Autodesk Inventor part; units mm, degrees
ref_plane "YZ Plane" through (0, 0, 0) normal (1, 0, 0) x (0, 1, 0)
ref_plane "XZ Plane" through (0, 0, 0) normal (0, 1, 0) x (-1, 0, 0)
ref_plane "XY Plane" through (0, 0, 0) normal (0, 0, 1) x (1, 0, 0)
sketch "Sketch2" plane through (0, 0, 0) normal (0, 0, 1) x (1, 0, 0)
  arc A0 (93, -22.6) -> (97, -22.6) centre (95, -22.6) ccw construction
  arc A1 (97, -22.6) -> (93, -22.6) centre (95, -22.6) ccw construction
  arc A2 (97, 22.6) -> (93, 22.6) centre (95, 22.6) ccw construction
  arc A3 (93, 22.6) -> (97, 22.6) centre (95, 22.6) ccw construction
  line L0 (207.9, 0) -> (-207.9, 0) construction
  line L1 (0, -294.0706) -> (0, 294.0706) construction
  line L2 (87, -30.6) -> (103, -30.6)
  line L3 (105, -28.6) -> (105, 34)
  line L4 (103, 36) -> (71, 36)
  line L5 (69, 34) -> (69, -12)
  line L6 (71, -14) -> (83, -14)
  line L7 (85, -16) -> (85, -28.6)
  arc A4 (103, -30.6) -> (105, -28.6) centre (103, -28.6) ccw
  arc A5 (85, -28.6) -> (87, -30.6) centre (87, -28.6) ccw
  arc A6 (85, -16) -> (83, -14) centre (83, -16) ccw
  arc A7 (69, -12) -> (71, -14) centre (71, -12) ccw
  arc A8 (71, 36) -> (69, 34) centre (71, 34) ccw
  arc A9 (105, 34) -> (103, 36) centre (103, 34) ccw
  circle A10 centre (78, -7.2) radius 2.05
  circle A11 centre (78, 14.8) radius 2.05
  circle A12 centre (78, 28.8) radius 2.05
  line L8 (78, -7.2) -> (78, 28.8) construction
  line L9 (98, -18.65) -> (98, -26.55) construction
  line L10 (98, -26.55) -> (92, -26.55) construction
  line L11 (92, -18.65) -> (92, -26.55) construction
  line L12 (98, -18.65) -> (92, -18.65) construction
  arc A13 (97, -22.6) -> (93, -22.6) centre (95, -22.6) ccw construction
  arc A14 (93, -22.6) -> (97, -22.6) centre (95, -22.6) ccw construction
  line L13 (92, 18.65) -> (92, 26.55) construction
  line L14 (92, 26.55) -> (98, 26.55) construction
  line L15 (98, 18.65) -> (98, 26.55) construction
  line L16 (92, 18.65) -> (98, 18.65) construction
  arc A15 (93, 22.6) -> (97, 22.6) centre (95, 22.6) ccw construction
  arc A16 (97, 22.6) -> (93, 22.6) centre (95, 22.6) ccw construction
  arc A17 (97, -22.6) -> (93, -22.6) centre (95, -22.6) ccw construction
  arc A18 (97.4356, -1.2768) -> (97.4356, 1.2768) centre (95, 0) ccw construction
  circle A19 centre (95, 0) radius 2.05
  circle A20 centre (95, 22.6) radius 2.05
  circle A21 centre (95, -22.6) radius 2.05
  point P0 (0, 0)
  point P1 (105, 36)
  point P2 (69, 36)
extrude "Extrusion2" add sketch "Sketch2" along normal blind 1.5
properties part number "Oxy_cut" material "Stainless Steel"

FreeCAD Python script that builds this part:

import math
import FreeCAD as App
import Part
import Sketcher

V = App.Vector

doc = App.newDocument("Part")
params = doc.addObject("Spreadsheet::Sheet", "Params")
for row, (alias, value) in enumerate([
    ("sketch1_radius", "2 mm"),
    ("sketch1_diameter", "4.1 mm"),
    ("sketch1_width", "16 mm"),
    ("sketch1_width2", "32 mm"),
    ("sketch1_height", "46 mm"),
    ("pad1_length", "1.5 mm"),
], start=1):
    params.set(f"A{row}", alias)
    params.set(f"B{row}", "=" + value)
    params.setAlias(f"B{row}", alias)

body = doc.addObject("PartDesign::Body", "Body")

# Sketch on XY plane
sketch1 = body.newObject("Sketcher::SketchObject", "Sketch")
sketch1.AttachmentSupport = (doc.getObject("XY_Plane"), [""])
sketch1.MapMode = "FlatFace"
sketch1.addGeometry([
    Part.ArcOfCircle(Part.Circle(V(87, -28.6, 0), V(0, 0, 1), 2), math.radians(180), math.radians(270)),  # 0
    Part.LineSegment(V(87, -30.6, 0), V(103, -30.6, 0)),  # 1
    Part.ArcOfCircle(Part.Circle(V(103, -28.6, 0), V(0, 0, 1), 2), math.radians(-90), math.radians(0)),  # 2
    Part.LineSegment(V(105, -28.6, 0), V(105, 34, 0)),  # 3
    Part.ArcOfCircle(Part.Circle(V(103, 34, 0), V(0, 0, 1), 2), math.radians(0), math.radians(90)),  # 4
    Part.LineSegment(V(103, 36, 0), V(71, 36, 0)),  # 5
    Part.ArcOfCircle(Part.Circle(V(71, 34, 0), V(0, 0, 1), 2), math.radians(90), math.radians(180)),  # 6
    Part.LineSegment(V(69, 34, 0), V(69, -12, 0)),  # 7
    Part.ArcOfCircle(Part.Circle(V(71, -12, 0), V(0, 0, 1), 2), math.radians(180), math.radians(270)),  # 8
    Part.LineSegment(V(71, -14, 0), V(83, -14, 0)),  # 9
    Part.ArcOfCircle(Part.Circle(V(83, -16, 0), V(0, 0, 1), 2), math.radians(0), math.radians(90)),  # 10
    Part.LineSegment(V(85, -16, 0), V(85, -28.6, 0)),  # 11
    Part.Circle(V(78, -7.2, 0), V(0, 0, 1), 2),  # 12
    Part.Circle(V(95, -22.6, 0), V(0, 0, 1), 2),  # 13
    Part.Circle(V(95, 0, 0), V(0, 0, 1), 2),  # 14
    Part.Circle(V(78, 14.8, 0), V(0, 0, 1), 2),  # 15
    Part.Circle(V(78, 28.8, 0), V(0, 0, 1), 2),  # 16
    Part.Circle(V(95, 22.6, 0), V(0, 0, 1), 2),  # 17
], False)
sketch1.addConstraint([
    Sketcher.Constraint("Tangent", 0, 2, 1, 1),
    Sketcher.Constraint("Tangent", 1, 2, 2, 1),
    Sketcher.Constraint("Tangent", 2, 2, 3, 1),
    Sketcher.Constraint("Tangent", 3, 2, 4, 1),
    Sketcher.Constraint("Tangent", 4, 2, 5, 1),
    Sketcher.Constraint("Tangent", 5, 2, 6, 1),
    Sketcher.Constraint("Tangent", 6, 2, 7, 1),
    Sketcher.Constraint("Tangent", 7, 2, 8, 1),
    Sketcher.Constraint("Tangent", 8, 2, 9, 1),
    Sketcher.Constraint("Tangent", 9, 2, 10, 2),
    Sketcher.Constraint("Tangent", 10, 1, 11, 1),
    Sketcher.Constraint("Tangent", 11, 2, 0, 1),
    Sketcher.Constraint("Horizontal", 1),
    Sketcher.Constraint("Vertical", 3),
    Sketcher.Constraint("Horizontal", 5),
    Sketcher.Constraint("Vertical", 7),
    Sketcher.Constraint("Horizontal", 9),
    Sketcher.Constraint("Vertical", 11),
    Sketcher.Constraint("Equal", 0, 2),
    Sketcher.Constraint("Equal", 2, 4),
    Sketcher.Constraint("Equal", 4, 6),
    Sketcher.Constraint("Equal", 6, 8),
    Sketcher.Constraint("Equal", 8, 10),
    Sketcher.Constraint("Equal", 12, 13),
    Sketcher.Constraint("Equal", 13, 14),
    Sketcher.Constraint("Equal", 14, 15),
    Sketcher.Constraint("Equal", 15, 16),
    Sketcher.Constraint("Equal", 16, 17),
    Sketcher.Constraint("Symmetric", 13, 3, 17, 3, -1),
    Sketcher.Constraint("PointOnObject", 14, 3, -1),
    Sketcher.Constraint("Vertical", 13, 3, 14, 3),
    Sketcher.Constraint("Vertical", 12, 3, 15, 3),
    Sketcher.Constraint("Vertical", 15, 3, 16, 3),
    Sketcher.Constraint("Radius", 0, 2.0),
    Sketcher.Constraint("Diameter", 12, 4.1),
    Sketcher.Constraint("DistanceX", 1, 1, 1, 2, 16.0),
    Sketcher.Constraint("DistanceX", 5, 2, 5, 1, 32.0),
    Sketcher.Constraint("DistanceY", 7, 2, 7, 1, 46.0),
    Sketcher.Constraint("DistanceY", 3, 1, 3, 2, 62.6),
    Sketcher.Constraint("DistanceX", -1, 1, 0, 3, 87.0),
    Sketcher.Constraint("DistanceY", -1, 1, 4, 3, 34.0),
    Sketcher.Constraint("DistanceX", -1, 1, 12, 3, 78.0),
    Sketcher.Constraint("DistanceX", -1, 1, 13, 3, 95.0),
    Sketcher.Constraint("DistanceY", 0, 3, 13, 3, 6.0),
    Sketcher.Constraint("DistanceY", 12, 3, 15, 3, 22.0),
    Sketcher.Constraint("DistanceY", 15, 3, 16, 3, 14.0),
    Sketcher.Constraint("DistanceY", 12, 3, -1, 1, 7.2),
])
sketch1.setExpression("Constraints[33]", "Params.sketch1_radius")
sketch1.setExpression("Constraints[34]", "Params.sketch1_diameter")
sketch1.setExpression("Constraints[35]", "Params.sketch1_width")
sketch1.setExpression("Constraints[36]", "Params.sketch1_width2")
sketch1.setExpression("Constraints[37]", "Params.sketch1_height")
pad1 = body.newObject("PartDesign::Pad", "Pad")
pad1.Profile = sketch1
pad1.setExpression("Length", "Params.pad1_length")

doc.recompute()
